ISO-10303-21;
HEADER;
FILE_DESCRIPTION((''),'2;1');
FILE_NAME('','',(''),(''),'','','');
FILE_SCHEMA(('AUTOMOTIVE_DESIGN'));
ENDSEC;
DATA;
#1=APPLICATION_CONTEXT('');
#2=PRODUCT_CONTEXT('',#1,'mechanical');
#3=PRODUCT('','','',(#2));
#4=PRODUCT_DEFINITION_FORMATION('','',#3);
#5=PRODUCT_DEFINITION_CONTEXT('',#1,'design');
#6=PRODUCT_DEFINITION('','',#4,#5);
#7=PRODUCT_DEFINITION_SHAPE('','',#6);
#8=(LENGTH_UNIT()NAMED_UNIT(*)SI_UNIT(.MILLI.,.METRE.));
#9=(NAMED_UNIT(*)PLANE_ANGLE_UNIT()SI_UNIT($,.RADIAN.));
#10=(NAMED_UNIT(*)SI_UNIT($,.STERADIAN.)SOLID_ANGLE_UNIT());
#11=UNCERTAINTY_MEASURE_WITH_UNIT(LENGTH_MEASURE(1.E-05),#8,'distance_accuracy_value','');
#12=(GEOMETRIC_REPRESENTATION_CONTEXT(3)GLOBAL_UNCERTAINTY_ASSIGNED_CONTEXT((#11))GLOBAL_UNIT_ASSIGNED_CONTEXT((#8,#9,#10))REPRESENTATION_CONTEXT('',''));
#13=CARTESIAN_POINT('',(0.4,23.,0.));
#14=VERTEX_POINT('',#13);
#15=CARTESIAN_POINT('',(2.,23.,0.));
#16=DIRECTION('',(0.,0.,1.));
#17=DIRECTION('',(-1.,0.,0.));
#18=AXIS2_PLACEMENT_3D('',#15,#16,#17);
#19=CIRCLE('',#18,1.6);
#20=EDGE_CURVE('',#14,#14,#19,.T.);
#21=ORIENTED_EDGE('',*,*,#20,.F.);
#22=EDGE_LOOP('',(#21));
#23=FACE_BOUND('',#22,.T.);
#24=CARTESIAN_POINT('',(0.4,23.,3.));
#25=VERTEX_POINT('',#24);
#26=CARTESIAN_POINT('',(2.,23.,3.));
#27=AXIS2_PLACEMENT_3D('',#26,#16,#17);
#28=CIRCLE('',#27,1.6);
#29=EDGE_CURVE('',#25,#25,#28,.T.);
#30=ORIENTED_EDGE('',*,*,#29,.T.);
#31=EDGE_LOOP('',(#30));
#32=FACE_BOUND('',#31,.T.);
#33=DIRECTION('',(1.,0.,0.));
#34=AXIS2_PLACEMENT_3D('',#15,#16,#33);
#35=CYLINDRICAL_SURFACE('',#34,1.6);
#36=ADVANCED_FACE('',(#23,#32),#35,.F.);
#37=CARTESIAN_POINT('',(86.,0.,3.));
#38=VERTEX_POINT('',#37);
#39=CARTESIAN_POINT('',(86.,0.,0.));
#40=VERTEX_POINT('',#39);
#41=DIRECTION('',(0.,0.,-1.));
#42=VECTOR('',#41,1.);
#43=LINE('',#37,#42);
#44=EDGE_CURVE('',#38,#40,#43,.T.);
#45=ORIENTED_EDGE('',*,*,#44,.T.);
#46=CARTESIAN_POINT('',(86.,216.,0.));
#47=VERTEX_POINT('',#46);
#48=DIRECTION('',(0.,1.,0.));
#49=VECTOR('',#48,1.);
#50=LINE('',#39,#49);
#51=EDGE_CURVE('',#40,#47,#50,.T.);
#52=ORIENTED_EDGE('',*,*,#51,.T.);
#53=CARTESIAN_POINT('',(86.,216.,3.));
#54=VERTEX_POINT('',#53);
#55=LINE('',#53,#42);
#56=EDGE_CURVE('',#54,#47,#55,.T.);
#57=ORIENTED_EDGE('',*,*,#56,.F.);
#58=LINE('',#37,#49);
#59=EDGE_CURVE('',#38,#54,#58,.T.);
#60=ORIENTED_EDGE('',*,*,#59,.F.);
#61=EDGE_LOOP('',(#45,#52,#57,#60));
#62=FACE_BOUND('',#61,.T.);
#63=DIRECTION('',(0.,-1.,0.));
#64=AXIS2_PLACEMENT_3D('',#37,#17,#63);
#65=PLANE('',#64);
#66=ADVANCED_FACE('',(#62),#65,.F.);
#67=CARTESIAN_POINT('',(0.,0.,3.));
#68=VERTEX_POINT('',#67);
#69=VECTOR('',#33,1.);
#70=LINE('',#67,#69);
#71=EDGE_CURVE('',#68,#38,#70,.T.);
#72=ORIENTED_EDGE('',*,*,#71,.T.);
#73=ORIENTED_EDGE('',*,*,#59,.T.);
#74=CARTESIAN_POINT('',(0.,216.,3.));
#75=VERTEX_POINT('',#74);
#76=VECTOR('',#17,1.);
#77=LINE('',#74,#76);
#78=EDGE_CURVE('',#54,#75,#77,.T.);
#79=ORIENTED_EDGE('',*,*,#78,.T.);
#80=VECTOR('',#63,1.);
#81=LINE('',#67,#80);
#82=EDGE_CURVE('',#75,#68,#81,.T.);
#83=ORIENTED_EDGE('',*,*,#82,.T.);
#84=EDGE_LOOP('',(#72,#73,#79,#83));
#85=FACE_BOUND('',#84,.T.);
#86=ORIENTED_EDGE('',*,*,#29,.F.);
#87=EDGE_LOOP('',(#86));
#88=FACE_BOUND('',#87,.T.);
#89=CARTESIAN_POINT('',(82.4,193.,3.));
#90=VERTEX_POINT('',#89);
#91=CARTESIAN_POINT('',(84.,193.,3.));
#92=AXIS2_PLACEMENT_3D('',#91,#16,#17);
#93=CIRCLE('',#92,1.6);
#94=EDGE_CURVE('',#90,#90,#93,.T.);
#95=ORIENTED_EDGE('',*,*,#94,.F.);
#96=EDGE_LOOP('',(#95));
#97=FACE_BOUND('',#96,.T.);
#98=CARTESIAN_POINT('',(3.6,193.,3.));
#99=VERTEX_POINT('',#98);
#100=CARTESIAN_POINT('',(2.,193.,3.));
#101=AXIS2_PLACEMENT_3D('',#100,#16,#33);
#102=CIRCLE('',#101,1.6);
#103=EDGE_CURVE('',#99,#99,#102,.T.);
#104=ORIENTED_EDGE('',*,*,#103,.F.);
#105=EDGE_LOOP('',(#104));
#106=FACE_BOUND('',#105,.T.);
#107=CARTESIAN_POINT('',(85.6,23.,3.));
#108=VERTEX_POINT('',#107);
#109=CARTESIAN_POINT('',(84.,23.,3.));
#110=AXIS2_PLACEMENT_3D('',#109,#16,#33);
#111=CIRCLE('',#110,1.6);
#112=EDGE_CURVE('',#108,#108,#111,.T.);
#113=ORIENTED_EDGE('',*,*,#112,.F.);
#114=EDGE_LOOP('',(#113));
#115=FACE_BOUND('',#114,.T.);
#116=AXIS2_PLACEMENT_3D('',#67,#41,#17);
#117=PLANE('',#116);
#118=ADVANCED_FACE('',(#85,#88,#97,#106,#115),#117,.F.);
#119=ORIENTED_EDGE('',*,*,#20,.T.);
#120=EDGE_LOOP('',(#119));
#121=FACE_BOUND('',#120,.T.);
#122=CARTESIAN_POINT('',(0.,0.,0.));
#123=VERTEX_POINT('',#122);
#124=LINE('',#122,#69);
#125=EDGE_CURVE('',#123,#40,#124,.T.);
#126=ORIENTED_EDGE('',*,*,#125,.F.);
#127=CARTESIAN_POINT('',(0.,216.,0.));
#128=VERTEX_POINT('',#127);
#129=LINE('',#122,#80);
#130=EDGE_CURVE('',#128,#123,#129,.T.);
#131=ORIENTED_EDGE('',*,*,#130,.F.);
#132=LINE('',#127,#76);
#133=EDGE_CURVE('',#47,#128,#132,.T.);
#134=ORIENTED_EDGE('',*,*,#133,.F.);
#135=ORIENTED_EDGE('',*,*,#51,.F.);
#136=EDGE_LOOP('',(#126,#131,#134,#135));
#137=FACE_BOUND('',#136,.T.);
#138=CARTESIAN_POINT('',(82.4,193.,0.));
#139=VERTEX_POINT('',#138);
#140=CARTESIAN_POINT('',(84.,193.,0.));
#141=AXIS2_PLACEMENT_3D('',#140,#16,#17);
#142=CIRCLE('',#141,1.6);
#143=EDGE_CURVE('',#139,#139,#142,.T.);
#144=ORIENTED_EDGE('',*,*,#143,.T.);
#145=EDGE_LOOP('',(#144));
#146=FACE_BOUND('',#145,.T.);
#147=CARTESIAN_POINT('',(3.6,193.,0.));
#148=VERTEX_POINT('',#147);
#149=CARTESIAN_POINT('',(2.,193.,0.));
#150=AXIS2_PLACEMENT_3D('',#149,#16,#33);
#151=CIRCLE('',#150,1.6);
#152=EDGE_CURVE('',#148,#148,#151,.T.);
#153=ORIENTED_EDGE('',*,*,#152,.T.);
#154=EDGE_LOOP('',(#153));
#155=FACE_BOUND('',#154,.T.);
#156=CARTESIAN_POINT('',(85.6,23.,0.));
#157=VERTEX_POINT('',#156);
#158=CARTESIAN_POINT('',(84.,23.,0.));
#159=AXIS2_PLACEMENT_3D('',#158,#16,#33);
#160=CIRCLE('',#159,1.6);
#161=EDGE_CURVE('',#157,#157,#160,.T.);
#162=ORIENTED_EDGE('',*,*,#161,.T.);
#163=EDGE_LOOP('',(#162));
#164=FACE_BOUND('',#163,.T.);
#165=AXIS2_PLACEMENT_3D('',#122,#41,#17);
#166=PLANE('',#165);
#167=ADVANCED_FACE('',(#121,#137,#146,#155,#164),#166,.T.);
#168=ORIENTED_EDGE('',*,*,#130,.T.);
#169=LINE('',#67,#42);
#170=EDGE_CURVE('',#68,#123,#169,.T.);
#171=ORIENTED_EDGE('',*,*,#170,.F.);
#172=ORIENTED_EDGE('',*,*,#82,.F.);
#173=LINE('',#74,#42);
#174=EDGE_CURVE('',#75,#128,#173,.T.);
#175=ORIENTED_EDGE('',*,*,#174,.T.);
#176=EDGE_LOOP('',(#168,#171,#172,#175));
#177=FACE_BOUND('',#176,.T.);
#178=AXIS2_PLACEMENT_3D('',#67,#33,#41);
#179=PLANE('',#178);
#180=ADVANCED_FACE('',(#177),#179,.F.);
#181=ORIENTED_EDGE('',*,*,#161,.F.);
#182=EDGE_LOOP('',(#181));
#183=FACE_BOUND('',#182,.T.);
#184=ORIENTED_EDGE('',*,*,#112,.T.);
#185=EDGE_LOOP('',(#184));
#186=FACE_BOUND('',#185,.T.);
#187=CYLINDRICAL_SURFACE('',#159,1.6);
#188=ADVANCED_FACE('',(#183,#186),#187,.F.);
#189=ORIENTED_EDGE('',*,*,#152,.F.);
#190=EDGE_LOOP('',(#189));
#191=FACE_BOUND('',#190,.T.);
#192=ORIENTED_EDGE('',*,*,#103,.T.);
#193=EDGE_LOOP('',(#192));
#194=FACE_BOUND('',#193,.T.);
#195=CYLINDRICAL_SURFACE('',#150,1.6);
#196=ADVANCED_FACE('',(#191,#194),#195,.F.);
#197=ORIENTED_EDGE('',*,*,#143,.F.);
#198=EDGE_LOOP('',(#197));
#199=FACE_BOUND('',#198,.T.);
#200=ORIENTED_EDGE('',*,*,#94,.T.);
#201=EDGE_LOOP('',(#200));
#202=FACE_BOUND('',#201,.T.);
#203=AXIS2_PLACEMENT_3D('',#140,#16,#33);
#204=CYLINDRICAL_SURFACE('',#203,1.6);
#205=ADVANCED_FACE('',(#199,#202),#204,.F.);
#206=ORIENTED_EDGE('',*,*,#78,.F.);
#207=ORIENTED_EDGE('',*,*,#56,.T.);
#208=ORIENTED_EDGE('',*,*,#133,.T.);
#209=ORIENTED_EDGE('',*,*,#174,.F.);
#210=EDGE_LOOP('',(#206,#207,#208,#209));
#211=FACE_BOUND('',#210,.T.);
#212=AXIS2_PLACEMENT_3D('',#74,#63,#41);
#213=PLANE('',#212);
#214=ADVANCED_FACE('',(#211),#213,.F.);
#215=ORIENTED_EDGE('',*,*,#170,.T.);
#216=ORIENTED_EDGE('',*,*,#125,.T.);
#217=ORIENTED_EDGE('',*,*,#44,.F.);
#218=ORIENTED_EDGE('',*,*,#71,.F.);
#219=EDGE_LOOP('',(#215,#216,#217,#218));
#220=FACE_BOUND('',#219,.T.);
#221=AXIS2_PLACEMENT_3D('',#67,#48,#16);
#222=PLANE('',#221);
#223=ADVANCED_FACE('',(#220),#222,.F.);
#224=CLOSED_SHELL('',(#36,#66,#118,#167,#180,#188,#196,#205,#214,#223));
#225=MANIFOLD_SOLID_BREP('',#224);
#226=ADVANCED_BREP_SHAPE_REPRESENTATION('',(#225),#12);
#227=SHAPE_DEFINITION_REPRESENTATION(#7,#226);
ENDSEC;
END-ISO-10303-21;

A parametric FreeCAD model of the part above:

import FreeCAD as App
import Part
import Sketcher
from FreeCAD import Vector
Q = App.Units.Quantity


def add_polygon(sketch, points):
    """Adds a closed chain of lines whose ends are joined by coincident constraints."""
    first, n = sketch.GeometryCount, len(points)
    for a, b in zip(points, points[1:] + points[:1]):
        sketch.addGeometry(Part.LineSegment(App.Vector(*a, 0), App.Vector(*b, 0)), False)
    for i in range(n):
        sketch.addConstraint(Sketcher.Constraint("Coincident", first + i, 2, first + (i + 1) % n, 1))

doc = App.newDocument("Part")
body = doc.addObject("PartDesign::Body", "Body")

# Sketch on XY plane
sketch1 = doc.addObject("Sketcher::SketchObject", "Sketch")
body.addObject(sketch1)
sketch1.AttachmentSupport = (doc.XY_Plane, [""])
sketch1.MapMode = "FlatFace"
add_polygon(sketch1, [(0, 216), (0, 0), (86, 0), (86, 216)])  # lines 0-3
sketch1.addConstraint([
    Sketcher.Constraint("Vertical", 0),
    Sketcher.Constraint("Horizontal", 1),
    Sketcher.Constraint("Vertical", 2),
    Sketcher.Constraint("Horizontal", 3),
    Sketcher.Constraint("Coincident", 0, 2, -1, 1),
    Sketcher.Constraint("DistanceX", 1, 1, 1, 2, Q("86 mm")),
    Sketcher.Constraint("DistanceY", 0, 2, 0, 1, Q("216 mm")),
])
pad1 = doc.addObject("PartDesign::Pad", "Pad")
body.addObject(pad1)
pad1.Profile = sketch1
pad1.Length = 3

# Sketch on XY plane
sketch2 = doc.addObject("Sketcher::SketchObject", "Sketch001")
body.addObject(sketch2)
sketch2.AttachmentSupport = (doc.XY_Plane, [""])
sketch2.MapMode = "FlatFace"
sketch2.AttachmentOffset = App.Placement(Vector(0, 0, 3), App.Rotation())
sketch2.addGeometry([
    Part.Circle(Vector(2, 193, 0), Vector(0, 0, 1), 1.6),
    Part.Circle(Vector(2, 23, 0), Vector(0, 0, 1), 1.6),
    Part.Circle(Vector(84, 23, 0), Vector(0, 0, 1), 1.6),
    Part.Circle(Vector(84, 193, 0), Vector(0, 0, 1), 1.6),
], False)
sketch2.addConstraint([
    Sketcher.Constraint("Equal", 0, 1),
    Sketcher.Constraint("Equal", 1, 2),
    Sketcher.Constraint("Equal", 2, 3),
    Sketcher.Constraint("Horizontal", 1, 3, 2, 3),
    Sketcher.Constraint("Horizontal", 0, 3, 3, 3),
    Sketcher.Constraint("Vertical", 0, 3, 1, 3),
    Sketcher.Constraint("Vertical", 2, 3, 3, 3),
    Sketcher.Constraint("Diameter", 0, Q("3.2 mm")),
    Sketcher.Constraint("DistanceX", -1, 1, 0, 3, Q("2 mm")),
    Sketcher.Constraint("DistanceY", -1, 1, 0, 3, Q("193 mm")),
    Sketcher.Constraint("DistanceY", -1, 1, 1, 3, Q("23 mm")),
    Sketcher.Constraint("DistanceX", -1, 1, 2, 3, Q("84 mm")),
])
pocket1 = doc.addObject("PartDesign::Pocket", "Pocket")
body.addObject(pocket1)
pocket1.Profile = sketch2
pocket1.Length = 3

doc.recompute()
